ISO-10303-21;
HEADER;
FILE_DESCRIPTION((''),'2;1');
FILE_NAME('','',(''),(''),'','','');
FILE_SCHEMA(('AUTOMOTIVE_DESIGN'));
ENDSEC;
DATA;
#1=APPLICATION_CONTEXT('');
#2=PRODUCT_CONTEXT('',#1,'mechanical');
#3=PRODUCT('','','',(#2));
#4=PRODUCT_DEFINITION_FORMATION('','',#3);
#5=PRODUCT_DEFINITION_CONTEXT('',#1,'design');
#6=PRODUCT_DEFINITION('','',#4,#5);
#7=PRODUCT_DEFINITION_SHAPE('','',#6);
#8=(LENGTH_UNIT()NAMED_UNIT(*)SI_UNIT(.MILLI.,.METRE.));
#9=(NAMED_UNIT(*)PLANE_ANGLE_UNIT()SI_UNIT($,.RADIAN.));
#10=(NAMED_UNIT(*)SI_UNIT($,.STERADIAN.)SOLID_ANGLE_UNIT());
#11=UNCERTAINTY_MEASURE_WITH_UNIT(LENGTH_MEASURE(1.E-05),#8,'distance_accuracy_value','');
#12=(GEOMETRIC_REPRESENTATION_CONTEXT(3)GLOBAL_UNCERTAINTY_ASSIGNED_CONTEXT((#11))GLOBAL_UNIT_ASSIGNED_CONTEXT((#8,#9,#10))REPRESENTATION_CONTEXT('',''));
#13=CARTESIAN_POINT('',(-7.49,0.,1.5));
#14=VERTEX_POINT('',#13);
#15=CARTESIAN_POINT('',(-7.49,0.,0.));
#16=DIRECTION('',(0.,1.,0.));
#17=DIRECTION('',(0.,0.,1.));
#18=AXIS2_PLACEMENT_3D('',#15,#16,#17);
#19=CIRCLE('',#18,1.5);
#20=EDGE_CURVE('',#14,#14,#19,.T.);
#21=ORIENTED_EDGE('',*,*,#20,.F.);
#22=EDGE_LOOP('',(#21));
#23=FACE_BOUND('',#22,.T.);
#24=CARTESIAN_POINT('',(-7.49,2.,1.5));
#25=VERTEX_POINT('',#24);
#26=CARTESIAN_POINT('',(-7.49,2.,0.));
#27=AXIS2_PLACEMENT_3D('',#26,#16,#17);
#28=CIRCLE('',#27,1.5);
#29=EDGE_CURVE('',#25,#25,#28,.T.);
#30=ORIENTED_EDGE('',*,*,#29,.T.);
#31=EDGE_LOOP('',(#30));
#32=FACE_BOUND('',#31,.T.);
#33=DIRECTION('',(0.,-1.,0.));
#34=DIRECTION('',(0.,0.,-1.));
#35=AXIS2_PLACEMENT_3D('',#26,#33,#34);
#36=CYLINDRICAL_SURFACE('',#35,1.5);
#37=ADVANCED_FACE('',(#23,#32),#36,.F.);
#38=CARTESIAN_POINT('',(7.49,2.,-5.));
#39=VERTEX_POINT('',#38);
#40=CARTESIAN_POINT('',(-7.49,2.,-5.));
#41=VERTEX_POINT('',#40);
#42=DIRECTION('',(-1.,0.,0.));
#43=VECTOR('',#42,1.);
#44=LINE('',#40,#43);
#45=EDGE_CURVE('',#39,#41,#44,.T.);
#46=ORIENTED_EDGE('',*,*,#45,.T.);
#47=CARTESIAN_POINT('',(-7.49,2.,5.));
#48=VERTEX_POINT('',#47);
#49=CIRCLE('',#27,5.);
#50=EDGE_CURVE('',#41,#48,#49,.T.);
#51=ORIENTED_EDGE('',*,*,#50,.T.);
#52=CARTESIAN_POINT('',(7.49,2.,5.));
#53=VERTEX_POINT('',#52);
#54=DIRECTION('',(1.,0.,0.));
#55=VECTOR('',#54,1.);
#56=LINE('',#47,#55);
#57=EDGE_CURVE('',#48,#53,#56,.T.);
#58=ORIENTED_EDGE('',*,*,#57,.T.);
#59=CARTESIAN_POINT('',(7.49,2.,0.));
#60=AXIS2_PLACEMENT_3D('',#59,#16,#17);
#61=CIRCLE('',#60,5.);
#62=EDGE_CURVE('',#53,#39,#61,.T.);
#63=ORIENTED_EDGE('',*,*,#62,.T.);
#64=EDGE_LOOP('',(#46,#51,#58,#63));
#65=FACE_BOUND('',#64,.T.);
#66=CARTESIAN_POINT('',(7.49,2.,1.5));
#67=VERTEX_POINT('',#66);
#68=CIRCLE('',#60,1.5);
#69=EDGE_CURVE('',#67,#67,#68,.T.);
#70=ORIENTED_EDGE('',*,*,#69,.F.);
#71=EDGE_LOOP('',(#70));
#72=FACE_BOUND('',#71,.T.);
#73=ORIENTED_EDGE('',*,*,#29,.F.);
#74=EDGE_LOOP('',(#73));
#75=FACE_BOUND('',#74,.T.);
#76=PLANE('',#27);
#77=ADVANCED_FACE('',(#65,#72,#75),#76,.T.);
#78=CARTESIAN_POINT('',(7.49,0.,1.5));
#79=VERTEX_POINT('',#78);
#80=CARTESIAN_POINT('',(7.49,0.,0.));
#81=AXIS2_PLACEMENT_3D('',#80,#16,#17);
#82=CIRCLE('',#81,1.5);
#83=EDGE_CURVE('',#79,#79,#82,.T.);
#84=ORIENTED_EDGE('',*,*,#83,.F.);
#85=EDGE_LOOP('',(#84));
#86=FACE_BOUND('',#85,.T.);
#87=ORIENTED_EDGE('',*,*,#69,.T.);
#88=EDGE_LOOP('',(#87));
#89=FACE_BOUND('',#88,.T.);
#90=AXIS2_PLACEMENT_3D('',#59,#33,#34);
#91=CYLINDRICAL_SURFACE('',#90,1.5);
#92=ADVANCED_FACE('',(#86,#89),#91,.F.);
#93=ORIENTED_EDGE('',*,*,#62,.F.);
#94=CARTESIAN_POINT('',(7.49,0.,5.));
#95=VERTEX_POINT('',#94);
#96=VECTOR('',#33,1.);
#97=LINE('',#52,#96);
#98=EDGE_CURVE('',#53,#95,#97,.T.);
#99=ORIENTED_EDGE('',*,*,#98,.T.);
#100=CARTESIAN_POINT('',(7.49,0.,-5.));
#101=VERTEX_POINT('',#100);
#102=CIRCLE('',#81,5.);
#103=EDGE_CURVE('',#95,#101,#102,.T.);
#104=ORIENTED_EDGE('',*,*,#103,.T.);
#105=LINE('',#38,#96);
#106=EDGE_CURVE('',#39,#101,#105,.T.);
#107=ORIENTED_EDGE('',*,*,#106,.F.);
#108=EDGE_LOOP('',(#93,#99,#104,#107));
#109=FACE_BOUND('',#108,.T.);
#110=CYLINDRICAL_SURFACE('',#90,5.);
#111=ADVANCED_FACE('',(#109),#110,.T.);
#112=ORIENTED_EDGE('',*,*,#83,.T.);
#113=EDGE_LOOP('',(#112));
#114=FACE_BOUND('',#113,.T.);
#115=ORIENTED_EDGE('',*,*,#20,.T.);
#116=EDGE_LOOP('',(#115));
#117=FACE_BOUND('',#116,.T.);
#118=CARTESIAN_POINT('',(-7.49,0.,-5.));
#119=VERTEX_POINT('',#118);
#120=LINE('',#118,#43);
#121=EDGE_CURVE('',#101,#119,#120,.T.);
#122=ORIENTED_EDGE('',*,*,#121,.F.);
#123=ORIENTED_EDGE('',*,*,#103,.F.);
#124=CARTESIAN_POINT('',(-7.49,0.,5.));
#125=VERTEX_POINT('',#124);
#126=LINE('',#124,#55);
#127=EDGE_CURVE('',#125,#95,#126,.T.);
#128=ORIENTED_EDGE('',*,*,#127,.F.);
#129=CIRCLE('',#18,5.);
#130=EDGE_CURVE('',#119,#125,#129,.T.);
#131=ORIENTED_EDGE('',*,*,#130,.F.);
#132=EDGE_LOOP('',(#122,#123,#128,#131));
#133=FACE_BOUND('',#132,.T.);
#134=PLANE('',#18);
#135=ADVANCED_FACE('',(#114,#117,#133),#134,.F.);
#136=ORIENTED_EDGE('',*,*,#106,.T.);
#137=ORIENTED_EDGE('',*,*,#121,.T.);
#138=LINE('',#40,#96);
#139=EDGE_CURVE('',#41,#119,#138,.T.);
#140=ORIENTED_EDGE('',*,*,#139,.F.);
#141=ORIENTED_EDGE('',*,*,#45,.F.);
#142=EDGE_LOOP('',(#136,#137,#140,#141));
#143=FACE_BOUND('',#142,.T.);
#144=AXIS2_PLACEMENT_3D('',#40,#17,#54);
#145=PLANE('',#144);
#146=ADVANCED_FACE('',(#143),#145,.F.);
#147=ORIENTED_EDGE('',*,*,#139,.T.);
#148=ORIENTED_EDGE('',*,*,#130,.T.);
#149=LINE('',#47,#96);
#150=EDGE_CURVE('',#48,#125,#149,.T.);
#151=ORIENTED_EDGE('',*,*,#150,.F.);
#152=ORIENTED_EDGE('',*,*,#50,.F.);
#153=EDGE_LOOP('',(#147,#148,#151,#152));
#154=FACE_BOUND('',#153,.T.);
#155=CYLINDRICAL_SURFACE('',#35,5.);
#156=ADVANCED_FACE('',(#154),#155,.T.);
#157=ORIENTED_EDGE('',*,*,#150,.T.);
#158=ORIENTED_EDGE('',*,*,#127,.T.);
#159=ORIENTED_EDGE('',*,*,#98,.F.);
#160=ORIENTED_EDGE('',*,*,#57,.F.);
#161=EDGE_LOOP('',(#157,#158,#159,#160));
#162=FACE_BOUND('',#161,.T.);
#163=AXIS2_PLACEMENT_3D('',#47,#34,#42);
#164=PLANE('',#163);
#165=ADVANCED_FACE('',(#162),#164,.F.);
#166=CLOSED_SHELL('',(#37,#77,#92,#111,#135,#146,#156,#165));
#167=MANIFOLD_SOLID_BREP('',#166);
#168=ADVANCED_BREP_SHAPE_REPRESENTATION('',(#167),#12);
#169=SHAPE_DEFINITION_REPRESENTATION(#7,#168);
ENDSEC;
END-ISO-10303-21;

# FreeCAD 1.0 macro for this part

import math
import FreeCAD as App
import Part
import Sketcher

V = App.Vector
Q = App.Units.Quantity

doc = App.newDocument("Part")
body = doc.addObject("PartDesign::Body", "Body")

# Sketch on XZ plane
sketch1 = body.newObject("Sketcher::SketchObject", "Sketch")
sketch1.AttachmentSupport = (doc.getObject("XZ_Plane"), [""])
sketch1.MapMode = "FlatFace"
sketch1.addGeometry(Part.LineSegment(V(7.5, -5, 0), V(-7.5, -5, 0)), False)
sketch1.addGeometry(Part.ArcOfCircle(Part.Circle(V(-7.5, 0, 0), V(0, 0, 1), 5), math.radians(90), math.radians(270)), False)
sketch1.addGeometry(Part.LineSegment(V(-7.5, 5, 0), V(7.5, 5, 0)), False)
sketch1.addGeometry(Part.ArcOfCircle(Part.Circle(V(7.5, 0, 0), V(0, 0, 1), 5), math.radians(-90), math.radians(90)), False)
sketch1.addGeometry(Part.Circle(V(7.5, 0, 0), V(0, 0, 1), 1.5), False)
sketch1.addGeometry(Part.Circle(V(-7.5, 0, 0), V(0, 0, 1), 1.5), False)
sketch1.addConstraint(Sketcher.Constraint("Tangent", 0, 2, 1, 2))
sketch1.addConstraint(Sketcher.Constraint("Tangent", 1, 1, 2, 1))
sketch1.addConstraint(Sketcher.Constraint("Tangent", 2, 2, 3, 2))
sketch1.addConstraint(Sketcher.Constraint("Tangent", 3, 1, 0, 1))
sketch1.addConstraint(Sketcher.Constraint("Horizontal", 0))
sketch1.addConstraint(Sketcher.Constraint("Horizontal", 2))
sketch1.addConstraint(Sketcher.Constraint("Coincident", 4, 3, 3, 3))
sketch1.addConstraint(Sketcher.Constraint("Coincident", 5, 3, 1, 3))
sketch1.addConstraint(Sketcher.Constraint("Equal", 4, 5))
sketch1.addConstraint(Sketcher.Constraint("Symmetric", 1, 3, 3, 3, -1, 1))
sketch1.addConstraint(Sketcher.Constraint("Diameter", 4, Q("3 mm")))
sketch1.addConstraint(Sketcher.Constraint("Radius", 1, Q("5 mm")))
sketch1.addConstraint(Sketcher.Constraint("DistanceX", 0, 2, 0, 1, Q("14.98 mm")))
pad1 = body.newObject("PartDesign::Pad", "Pad")
pad1.Profile = sketch1
pad1.Length = 2
pad1.Reversed = True

doc.recompute()
